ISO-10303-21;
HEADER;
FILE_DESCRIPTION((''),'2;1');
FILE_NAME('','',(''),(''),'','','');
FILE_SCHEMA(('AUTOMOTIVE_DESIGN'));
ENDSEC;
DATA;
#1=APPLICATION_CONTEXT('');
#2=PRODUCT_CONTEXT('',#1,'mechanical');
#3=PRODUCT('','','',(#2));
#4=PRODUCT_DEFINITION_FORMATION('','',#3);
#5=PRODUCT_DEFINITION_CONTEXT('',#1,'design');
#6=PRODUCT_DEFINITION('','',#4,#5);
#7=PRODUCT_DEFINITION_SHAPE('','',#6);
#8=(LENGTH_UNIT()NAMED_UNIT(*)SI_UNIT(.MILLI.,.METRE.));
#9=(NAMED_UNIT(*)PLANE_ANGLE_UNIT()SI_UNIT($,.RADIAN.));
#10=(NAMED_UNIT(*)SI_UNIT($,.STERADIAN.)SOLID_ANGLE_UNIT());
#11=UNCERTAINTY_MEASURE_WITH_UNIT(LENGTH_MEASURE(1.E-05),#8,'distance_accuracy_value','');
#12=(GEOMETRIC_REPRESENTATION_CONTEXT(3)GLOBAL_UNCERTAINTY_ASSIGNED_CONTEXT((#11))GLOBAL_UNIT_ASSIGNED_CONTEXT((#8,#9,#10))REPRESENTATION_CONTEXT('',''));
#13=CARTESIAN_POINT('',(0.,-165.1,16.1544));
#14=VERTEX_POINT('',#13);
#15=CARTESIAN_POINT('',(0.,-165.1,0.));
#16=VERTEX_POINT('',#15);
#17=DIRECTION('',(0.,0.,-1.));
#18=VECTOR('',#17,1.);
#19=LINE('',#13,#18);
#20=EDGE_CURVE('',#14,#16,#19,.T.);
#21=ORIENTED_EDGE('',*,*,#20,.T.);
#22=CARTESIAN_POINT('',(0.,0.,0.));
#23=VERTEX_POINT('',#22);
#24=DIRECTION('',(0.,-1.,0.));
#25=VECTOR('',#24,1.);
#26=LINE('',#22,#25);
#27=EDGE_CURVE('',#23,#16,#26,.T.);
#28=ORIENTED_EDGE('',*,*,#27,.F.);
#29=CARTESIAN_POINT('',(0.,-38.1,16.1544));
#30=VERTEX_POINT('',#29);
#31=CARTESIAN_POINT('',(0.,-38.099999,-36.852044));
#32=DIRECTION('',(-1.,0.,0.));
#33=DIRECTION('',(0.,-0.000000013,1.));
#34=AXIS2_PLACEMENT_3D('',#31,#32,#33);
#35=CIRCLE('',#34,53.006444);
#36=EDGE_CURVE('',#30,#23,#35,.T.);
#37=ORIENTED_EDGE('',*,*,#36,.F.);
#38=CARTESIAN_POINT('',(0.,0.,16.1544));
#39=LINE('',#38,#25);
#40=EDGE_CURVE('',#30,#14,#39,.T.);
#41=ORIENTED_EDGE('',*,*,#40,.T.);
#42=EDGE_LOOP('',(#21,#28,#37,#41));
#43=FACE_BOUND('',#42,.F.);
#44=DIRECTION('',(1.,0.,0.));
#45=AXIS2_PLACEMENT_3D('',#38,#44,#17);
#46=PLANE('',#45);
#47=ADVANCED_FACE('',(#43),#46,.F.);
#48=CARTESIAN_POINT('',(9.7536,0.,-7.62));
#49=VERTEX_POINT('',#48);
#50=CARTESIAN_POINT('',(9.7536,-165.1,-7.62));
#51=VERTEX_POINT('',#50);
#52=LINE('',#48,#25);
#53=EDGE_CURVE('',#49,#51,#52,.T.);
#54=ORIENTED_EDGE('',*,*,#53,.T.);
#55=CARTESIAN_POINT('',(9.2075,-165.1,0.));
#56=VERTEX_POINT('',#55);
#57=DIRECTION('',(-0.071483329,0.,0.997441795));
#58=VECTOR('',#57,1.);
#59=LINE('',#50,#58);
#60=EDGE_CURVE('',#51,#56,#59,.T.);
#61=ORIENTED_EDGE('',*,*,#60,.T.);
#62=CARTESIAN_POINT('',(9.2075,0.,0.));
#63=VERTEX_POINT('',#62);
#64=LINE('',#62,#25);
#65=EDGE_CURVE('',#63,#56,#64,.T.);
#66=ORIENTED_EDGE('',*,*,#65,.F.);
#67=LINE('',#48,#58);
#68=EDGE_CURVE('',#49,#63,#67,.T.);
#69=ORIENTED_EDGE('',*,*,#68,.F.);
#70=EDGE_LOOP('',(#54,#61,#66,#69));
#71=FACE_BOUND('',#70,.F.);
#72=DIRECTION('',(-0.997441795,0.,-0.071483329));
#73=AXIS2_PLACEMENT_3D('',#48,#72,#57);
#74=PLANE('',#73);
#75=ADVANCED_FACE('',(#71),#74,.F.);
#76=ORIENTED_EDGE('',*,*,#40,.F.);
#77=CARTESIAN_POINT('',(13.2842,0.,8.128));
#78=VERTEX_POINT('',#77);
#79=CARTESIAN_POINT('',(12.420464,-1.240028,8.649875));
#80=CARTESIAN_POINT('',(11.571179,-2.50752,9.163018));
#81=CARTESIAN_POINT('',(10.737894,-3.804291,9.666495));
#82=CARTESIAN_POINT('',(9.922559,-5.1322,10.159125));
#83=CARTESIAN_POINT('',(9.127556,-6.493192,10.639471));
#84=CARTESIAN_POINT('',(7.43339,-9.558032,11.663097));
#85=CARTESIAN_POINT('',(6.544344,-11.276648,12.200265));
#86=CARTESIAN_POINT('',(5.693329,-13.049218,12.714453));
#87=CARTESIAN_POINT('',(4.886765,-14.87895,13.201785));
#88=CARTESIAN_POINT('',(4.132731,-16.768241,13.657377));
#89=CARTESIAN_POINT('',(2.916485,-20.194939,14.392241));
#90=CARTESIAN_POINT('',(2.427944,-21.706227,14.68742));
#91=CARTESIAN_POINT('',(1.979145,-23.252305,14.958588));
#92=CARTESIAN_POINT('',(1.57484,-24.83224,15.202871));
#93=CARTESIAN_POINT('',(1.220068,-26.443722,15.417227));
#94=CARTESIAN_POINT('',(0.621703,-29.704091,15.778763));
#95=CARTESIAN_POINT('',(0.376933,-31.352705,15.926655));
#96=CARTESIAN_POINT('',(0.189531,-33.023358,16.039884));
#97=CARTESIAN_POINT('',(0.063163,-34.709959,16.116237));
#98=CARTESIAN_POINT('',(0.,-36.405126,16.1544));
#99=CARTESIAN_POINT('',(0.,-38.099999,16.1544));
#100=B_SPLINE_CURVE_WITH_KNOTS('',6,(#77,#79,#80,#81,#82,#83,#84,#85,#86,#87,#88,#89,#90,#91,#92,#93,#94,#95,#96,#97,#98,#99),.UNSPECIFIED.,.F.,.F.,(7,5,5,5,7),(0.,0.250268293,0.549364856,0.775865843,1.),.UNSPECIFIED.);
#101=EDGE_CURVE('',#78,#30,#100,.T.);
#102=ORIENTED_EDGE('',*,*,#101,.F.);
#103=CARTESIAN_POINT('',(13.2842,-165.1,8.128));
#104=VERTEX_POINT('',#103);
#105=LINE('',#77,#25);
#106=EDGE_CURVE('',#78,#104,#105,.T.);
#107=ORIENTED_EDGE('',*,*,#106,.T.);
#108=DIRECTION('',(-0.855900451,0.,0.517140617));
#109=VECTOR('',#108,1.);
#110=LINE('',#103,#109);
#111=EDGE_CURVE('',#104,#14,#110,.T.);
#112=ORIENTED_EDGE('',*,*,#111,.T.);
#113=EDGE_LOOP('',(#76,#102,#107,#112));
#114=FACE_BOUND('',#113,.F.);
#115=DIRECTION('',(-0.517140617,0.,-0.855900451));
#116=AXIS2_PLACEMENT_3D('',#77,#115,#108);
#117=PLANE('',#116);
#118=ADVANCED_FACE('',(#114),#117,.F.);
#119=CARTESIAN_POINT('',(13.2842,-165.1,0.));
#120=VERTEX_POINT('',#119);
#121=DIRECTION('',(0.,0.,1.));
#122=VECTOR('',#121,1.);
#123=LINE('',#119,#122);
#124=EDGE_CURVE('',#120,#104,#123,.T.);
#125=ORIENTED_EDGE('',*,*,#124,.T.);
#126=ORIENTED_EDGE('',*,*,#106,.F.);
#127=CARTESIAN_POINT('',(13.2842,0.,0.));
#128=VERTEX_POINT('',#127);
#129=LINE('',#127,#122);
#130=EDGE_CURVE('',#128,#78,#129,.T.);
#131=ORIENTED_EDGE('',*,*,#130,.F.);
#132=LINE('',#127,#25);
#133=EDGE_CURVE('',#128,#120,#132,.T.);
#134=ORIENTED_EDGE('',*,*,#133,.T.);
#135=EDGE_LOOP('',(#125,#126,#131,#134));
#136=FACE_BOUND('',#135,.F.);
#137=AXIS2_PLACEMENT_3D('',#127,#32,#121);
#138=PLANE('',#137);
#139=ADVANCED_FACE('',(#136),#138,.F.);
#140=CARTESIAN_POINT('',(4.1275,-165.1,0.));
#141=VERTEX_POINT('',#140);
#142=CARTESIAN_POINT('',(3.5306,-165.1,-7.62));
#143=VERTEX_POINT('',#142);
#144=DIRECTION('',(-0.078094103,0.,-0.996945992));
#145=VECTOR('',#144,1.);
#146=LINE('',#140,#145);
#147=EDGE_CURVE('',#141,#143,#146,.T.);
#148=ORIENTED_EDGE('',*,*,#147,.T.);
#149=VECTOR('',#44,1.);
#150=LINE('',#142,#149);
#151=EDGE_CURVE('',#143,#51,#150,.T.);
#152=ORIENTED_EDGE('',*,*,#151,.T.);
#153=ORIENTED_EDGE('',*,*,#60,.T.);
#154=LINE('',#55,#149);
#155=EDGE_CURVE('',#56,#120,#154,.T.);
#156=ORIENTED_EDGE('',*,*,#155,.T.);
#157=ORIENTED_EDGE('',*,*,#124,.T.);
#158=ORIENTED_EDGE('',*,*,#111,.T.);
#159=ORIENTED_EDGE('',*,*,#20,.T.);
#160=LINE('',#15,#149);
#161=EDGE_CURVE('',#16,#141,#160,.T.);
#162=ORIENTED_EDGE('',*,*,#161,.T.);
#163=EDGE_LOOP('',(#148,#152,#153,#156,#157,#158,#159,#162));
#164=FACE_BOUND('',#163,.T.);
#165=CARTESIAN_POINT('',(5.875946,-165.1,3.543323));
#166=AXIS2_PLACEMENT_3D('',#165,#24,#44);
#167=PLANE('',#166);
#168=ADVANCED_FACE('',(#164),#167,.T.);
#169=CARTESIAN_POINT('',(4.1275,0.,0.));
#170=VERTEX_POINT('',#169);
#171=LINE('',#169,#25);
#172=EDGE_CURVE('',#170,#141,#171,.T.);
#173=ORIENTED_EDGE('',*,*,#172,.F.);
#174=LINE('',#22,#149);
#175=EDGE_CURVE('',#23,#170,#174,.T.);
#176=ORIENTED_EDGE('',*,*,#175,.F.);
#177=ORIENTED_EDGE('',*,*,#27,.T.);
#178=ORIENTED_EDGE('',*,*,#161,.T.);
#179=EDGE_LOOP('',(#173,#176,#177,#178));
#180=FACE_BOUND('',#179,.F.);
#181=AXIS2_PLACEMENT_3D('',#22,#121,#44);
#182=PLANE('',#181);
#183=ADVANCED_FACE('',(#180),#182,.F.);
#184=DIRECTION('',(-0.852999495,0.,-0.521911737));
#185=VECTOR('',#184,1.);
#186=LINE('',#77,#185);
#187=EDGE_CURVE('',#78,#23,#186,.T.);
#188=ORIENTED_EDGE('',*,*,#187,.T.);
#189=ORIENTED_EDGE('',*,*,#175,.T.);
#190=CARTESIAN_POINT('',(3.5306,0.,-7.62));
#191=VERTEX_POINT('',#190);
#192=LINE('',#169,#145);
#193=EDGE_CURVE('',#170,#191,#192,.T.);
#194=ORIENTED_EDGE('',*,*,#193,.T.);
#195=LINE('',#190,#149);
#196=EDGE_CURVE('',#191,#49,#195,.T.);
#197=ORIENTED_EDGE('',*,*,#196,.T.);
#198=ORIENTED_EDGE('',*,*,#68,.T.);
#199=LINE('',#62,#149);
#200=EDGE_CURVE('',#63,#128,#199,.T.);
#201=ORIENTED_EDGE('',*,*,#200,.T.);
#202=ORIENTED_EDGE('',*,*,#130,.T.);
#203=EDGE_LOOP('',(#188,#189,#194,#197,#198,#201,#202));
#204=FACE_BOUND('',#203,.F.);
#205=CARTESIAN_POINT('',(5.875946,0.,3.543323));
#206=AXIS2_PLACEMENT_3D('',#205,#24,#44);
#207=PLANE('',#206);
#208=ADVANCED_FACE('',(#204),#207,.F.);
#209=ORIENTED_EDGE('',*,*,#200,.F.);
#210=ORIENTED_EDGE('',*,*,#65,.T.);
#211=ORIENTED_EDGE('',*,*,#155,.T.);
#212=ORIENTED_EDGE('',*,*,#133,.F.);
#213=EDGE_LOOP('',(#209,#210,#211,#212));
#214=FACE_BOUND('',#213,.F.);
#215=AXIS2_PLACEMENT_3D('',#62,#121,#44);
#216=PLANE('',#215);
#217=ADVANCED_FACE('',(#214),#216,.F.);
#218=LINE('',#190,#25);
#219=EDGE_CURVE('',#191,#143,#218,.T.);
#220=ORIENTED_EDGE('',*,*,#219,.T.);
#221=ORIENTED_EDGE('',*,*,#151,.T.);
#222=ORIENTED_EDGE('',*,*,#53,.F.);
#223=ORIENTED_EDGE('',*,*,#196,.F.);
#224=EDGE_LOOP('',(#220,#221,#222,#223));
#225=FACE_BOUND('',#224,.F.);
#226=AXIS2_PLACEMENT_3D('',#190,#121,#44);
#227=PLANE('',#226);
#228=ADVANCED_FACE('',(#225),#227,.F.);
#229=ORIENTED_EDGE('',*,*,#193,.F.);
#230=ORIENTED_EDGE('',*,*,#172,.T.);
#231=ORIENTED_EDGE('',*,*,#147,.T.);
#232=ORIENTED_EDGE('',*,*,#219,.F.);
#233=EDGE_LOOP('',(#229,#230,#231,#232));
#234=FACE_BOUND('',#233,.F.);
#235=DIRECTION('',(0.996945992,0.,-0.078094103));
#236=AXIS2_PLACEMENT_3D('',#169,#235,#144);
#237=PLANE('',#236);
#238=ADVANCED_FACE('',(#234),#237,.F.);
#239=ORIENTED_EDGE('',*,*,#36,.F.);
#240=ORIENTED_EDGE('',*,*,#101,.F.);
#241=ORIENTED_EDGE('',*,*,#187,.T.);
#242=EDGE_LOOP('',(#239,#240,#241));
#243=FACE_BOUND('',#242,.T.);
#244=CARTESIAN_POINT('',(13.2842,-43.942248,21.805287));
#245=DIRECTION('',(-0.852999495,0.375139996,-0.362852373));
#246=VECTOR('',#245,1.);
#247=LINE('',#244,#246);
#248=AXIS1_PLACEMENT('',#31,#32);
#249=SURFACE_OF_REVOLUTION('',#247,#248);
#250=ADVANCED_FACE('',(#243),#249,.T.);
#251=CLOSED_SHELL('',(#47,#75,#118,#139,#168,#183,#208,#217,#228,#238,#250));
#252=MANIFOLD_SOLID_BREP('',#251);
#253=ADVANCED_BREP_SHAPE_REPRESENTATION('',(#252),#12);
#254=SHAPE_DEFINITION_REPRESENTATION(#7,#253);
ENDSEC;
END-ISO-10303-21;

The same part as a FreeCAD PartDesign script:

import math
import FreeCAD as App
import Part
import Sketcher
Q = App.Units.Quantity


def add_polygon(sketch, points):
    """Adds a closed chain of lines whose ends are joined by coincident constraints."""
    first, n = sketch.GeometryCount, len(points)
    for a, b in zip(points, points[1:] + points[:1]):
        sketch.addGeometry(Part.LineSegment(App.Vector(*a, 0), App.Vector(*b, 0)), False)
    for i in range(n):
        sketch.addConstraint(Sketcher.Constraint("Coincident", first + i, 2, first + (i + 1) % n, 1))

doc = App.newDocument("Part")
body = doc.addObject("PartDesign::Body", "Body")

sketch1 = body.newObject("Sketcher::SketchObject", "Sketch")
sketch1.AttachmentSupport = (doc.getObject("XZ_Plane"), [""])
sketch1.MapMode = "FlatFace"
add_polygon(sketch1, [(0, 0), (4.1275, 0), (3.5306, -7.62), (9.7536, -7.62), (9.2075, 0), (13.2842, 0), (13.2842, 8.128), (0, 16.1544)])
sketch1.addConstraint(Sketcher.Constraint("Horizontal", 0))
sketch1.addConstraint(Sketcher.Constraint("Horizontal", 2))
sketch1.addConstraint(Sketcher.Constraint("Horizontal", 4))
sketch1.addConstraint(Sketcher.Constraint("Vertical", 5))
sketch1.addConstraint(Sketcher.Constraint("Vertical", 7))
sketch1.addConstraint(Sketcher.Constraint("Coincident", 7, 2, -1, 1))
sketch1.addConstraint(Sketcher.Constraint("PointOnObject", 3, 2, -1))
sketch1.addConstraint(Sketcher.Constraint("DistanceY", 5, 1, 5, 2, Q("0.32 in")))
sketch1.addConstraint(Sketcher.Constraint("DistanceY", 1, 2, -1, 1, Q("0.3 in")))
sketch1.addConstraint(Sketcher.Constraint("DistanceX", 0, 2, 3, 2, Q("0.2 in")))
sketch1.addConstraint(Sketcher.Constraint("DistanceX", 2, 1, 2, 2, Q("0.245 in")))
sketch1.addConstraint(Sketcher.Constraint("DistanceY", 7, 2, 7, 1, Q("0.636 in")))
sketch1.addConstraint(Sketcher.Constraint("DistanceX", 0, 1, 0, 2, Q("0.1625 in")))
sketch1.addConstraint(Sketcher.Constraint("DistanceX", 4, 1, 4, 2, Q("0.1605 in")))
sketch1.addConstraint(Sketcher.Constraint("DistanceX", -1, 1, 1, 2, Q("0.139 in")))
pad1 = body.newObject("PartDesign::Pad", "Pad")
pad1.Profile = sketch1
pad1.Length = Q("6.5 in")

sketch2 = body.newObject("Sketcher::SketchObject", "Sketch001")
sketch2.AttachmentSupport = (doc.getObject("XZ_Plane"), [""])
sketch2.MapMode = "FlatFace"
add_polygon(sketch2, [(0, 0), (0, 16.1544), (13.2842, 8.128)])
sketch2.addConstraint(Sketcher.Constraint("Vertical", 0))
sketch2.addConstraint(Sketcher.Constraint("Coincident", 2, 2, -1, 1))
sketch2.addConstraint(Sketcher.Constraint("DistanceY", 0, 1, 0, 2, Q("0.636 in")))
sketch2.addConstraint(Sketcher.Constraint("DistanceY", -1, 1, 1, 2, Q("0.32 in")))
sketch2.addConstraint(Sketcher.Constraint("DistanceX", -1, 1, 1, 2, Q("0.523 in")))

sketch3 = body.newObject("Sketcher::SketchObject", "Sketch002")
sketch3.AttachmentSupport = (doc.getObject("YZ_Plane"), [""])
sketch3.MapMode = "FlatFace"
sketch3.addGeometry(Part.ArcOfCircle(Part.Circle(App.Vector(-38.099999, -36.852044, 0), App.Vector(0, 0, 1), 53.006444), math.radians(44.04611), math.radians(90.000001)), False)
sketch3.addConstraint(Sketcher.Constraint("Coincident", 0, 1, -1, 1))
sketch3.addConstraint(Sketcher.Constraint("DistanceX", 0, 3, -1, 1, Q("1.5 in")))
sketch3.addConstraint(Sketcher.Constraint("DistanceX", 0, 2, -1, 1, Q("1.5 in")))
sketch3.addConstraint(Sketcher.Constraint("DistanceY", -1, 1, 0, 2, Q("0.636 in")))
doc.recompute()

subtractivepipe = body.newObject("PartDesign::SubtractivePipe", "SubtractivePipe")
subtractivepipe.Profile = sketch2
subtractivepipe.Spine = (sketch3, ["Edge1"])

doc.recompute()
